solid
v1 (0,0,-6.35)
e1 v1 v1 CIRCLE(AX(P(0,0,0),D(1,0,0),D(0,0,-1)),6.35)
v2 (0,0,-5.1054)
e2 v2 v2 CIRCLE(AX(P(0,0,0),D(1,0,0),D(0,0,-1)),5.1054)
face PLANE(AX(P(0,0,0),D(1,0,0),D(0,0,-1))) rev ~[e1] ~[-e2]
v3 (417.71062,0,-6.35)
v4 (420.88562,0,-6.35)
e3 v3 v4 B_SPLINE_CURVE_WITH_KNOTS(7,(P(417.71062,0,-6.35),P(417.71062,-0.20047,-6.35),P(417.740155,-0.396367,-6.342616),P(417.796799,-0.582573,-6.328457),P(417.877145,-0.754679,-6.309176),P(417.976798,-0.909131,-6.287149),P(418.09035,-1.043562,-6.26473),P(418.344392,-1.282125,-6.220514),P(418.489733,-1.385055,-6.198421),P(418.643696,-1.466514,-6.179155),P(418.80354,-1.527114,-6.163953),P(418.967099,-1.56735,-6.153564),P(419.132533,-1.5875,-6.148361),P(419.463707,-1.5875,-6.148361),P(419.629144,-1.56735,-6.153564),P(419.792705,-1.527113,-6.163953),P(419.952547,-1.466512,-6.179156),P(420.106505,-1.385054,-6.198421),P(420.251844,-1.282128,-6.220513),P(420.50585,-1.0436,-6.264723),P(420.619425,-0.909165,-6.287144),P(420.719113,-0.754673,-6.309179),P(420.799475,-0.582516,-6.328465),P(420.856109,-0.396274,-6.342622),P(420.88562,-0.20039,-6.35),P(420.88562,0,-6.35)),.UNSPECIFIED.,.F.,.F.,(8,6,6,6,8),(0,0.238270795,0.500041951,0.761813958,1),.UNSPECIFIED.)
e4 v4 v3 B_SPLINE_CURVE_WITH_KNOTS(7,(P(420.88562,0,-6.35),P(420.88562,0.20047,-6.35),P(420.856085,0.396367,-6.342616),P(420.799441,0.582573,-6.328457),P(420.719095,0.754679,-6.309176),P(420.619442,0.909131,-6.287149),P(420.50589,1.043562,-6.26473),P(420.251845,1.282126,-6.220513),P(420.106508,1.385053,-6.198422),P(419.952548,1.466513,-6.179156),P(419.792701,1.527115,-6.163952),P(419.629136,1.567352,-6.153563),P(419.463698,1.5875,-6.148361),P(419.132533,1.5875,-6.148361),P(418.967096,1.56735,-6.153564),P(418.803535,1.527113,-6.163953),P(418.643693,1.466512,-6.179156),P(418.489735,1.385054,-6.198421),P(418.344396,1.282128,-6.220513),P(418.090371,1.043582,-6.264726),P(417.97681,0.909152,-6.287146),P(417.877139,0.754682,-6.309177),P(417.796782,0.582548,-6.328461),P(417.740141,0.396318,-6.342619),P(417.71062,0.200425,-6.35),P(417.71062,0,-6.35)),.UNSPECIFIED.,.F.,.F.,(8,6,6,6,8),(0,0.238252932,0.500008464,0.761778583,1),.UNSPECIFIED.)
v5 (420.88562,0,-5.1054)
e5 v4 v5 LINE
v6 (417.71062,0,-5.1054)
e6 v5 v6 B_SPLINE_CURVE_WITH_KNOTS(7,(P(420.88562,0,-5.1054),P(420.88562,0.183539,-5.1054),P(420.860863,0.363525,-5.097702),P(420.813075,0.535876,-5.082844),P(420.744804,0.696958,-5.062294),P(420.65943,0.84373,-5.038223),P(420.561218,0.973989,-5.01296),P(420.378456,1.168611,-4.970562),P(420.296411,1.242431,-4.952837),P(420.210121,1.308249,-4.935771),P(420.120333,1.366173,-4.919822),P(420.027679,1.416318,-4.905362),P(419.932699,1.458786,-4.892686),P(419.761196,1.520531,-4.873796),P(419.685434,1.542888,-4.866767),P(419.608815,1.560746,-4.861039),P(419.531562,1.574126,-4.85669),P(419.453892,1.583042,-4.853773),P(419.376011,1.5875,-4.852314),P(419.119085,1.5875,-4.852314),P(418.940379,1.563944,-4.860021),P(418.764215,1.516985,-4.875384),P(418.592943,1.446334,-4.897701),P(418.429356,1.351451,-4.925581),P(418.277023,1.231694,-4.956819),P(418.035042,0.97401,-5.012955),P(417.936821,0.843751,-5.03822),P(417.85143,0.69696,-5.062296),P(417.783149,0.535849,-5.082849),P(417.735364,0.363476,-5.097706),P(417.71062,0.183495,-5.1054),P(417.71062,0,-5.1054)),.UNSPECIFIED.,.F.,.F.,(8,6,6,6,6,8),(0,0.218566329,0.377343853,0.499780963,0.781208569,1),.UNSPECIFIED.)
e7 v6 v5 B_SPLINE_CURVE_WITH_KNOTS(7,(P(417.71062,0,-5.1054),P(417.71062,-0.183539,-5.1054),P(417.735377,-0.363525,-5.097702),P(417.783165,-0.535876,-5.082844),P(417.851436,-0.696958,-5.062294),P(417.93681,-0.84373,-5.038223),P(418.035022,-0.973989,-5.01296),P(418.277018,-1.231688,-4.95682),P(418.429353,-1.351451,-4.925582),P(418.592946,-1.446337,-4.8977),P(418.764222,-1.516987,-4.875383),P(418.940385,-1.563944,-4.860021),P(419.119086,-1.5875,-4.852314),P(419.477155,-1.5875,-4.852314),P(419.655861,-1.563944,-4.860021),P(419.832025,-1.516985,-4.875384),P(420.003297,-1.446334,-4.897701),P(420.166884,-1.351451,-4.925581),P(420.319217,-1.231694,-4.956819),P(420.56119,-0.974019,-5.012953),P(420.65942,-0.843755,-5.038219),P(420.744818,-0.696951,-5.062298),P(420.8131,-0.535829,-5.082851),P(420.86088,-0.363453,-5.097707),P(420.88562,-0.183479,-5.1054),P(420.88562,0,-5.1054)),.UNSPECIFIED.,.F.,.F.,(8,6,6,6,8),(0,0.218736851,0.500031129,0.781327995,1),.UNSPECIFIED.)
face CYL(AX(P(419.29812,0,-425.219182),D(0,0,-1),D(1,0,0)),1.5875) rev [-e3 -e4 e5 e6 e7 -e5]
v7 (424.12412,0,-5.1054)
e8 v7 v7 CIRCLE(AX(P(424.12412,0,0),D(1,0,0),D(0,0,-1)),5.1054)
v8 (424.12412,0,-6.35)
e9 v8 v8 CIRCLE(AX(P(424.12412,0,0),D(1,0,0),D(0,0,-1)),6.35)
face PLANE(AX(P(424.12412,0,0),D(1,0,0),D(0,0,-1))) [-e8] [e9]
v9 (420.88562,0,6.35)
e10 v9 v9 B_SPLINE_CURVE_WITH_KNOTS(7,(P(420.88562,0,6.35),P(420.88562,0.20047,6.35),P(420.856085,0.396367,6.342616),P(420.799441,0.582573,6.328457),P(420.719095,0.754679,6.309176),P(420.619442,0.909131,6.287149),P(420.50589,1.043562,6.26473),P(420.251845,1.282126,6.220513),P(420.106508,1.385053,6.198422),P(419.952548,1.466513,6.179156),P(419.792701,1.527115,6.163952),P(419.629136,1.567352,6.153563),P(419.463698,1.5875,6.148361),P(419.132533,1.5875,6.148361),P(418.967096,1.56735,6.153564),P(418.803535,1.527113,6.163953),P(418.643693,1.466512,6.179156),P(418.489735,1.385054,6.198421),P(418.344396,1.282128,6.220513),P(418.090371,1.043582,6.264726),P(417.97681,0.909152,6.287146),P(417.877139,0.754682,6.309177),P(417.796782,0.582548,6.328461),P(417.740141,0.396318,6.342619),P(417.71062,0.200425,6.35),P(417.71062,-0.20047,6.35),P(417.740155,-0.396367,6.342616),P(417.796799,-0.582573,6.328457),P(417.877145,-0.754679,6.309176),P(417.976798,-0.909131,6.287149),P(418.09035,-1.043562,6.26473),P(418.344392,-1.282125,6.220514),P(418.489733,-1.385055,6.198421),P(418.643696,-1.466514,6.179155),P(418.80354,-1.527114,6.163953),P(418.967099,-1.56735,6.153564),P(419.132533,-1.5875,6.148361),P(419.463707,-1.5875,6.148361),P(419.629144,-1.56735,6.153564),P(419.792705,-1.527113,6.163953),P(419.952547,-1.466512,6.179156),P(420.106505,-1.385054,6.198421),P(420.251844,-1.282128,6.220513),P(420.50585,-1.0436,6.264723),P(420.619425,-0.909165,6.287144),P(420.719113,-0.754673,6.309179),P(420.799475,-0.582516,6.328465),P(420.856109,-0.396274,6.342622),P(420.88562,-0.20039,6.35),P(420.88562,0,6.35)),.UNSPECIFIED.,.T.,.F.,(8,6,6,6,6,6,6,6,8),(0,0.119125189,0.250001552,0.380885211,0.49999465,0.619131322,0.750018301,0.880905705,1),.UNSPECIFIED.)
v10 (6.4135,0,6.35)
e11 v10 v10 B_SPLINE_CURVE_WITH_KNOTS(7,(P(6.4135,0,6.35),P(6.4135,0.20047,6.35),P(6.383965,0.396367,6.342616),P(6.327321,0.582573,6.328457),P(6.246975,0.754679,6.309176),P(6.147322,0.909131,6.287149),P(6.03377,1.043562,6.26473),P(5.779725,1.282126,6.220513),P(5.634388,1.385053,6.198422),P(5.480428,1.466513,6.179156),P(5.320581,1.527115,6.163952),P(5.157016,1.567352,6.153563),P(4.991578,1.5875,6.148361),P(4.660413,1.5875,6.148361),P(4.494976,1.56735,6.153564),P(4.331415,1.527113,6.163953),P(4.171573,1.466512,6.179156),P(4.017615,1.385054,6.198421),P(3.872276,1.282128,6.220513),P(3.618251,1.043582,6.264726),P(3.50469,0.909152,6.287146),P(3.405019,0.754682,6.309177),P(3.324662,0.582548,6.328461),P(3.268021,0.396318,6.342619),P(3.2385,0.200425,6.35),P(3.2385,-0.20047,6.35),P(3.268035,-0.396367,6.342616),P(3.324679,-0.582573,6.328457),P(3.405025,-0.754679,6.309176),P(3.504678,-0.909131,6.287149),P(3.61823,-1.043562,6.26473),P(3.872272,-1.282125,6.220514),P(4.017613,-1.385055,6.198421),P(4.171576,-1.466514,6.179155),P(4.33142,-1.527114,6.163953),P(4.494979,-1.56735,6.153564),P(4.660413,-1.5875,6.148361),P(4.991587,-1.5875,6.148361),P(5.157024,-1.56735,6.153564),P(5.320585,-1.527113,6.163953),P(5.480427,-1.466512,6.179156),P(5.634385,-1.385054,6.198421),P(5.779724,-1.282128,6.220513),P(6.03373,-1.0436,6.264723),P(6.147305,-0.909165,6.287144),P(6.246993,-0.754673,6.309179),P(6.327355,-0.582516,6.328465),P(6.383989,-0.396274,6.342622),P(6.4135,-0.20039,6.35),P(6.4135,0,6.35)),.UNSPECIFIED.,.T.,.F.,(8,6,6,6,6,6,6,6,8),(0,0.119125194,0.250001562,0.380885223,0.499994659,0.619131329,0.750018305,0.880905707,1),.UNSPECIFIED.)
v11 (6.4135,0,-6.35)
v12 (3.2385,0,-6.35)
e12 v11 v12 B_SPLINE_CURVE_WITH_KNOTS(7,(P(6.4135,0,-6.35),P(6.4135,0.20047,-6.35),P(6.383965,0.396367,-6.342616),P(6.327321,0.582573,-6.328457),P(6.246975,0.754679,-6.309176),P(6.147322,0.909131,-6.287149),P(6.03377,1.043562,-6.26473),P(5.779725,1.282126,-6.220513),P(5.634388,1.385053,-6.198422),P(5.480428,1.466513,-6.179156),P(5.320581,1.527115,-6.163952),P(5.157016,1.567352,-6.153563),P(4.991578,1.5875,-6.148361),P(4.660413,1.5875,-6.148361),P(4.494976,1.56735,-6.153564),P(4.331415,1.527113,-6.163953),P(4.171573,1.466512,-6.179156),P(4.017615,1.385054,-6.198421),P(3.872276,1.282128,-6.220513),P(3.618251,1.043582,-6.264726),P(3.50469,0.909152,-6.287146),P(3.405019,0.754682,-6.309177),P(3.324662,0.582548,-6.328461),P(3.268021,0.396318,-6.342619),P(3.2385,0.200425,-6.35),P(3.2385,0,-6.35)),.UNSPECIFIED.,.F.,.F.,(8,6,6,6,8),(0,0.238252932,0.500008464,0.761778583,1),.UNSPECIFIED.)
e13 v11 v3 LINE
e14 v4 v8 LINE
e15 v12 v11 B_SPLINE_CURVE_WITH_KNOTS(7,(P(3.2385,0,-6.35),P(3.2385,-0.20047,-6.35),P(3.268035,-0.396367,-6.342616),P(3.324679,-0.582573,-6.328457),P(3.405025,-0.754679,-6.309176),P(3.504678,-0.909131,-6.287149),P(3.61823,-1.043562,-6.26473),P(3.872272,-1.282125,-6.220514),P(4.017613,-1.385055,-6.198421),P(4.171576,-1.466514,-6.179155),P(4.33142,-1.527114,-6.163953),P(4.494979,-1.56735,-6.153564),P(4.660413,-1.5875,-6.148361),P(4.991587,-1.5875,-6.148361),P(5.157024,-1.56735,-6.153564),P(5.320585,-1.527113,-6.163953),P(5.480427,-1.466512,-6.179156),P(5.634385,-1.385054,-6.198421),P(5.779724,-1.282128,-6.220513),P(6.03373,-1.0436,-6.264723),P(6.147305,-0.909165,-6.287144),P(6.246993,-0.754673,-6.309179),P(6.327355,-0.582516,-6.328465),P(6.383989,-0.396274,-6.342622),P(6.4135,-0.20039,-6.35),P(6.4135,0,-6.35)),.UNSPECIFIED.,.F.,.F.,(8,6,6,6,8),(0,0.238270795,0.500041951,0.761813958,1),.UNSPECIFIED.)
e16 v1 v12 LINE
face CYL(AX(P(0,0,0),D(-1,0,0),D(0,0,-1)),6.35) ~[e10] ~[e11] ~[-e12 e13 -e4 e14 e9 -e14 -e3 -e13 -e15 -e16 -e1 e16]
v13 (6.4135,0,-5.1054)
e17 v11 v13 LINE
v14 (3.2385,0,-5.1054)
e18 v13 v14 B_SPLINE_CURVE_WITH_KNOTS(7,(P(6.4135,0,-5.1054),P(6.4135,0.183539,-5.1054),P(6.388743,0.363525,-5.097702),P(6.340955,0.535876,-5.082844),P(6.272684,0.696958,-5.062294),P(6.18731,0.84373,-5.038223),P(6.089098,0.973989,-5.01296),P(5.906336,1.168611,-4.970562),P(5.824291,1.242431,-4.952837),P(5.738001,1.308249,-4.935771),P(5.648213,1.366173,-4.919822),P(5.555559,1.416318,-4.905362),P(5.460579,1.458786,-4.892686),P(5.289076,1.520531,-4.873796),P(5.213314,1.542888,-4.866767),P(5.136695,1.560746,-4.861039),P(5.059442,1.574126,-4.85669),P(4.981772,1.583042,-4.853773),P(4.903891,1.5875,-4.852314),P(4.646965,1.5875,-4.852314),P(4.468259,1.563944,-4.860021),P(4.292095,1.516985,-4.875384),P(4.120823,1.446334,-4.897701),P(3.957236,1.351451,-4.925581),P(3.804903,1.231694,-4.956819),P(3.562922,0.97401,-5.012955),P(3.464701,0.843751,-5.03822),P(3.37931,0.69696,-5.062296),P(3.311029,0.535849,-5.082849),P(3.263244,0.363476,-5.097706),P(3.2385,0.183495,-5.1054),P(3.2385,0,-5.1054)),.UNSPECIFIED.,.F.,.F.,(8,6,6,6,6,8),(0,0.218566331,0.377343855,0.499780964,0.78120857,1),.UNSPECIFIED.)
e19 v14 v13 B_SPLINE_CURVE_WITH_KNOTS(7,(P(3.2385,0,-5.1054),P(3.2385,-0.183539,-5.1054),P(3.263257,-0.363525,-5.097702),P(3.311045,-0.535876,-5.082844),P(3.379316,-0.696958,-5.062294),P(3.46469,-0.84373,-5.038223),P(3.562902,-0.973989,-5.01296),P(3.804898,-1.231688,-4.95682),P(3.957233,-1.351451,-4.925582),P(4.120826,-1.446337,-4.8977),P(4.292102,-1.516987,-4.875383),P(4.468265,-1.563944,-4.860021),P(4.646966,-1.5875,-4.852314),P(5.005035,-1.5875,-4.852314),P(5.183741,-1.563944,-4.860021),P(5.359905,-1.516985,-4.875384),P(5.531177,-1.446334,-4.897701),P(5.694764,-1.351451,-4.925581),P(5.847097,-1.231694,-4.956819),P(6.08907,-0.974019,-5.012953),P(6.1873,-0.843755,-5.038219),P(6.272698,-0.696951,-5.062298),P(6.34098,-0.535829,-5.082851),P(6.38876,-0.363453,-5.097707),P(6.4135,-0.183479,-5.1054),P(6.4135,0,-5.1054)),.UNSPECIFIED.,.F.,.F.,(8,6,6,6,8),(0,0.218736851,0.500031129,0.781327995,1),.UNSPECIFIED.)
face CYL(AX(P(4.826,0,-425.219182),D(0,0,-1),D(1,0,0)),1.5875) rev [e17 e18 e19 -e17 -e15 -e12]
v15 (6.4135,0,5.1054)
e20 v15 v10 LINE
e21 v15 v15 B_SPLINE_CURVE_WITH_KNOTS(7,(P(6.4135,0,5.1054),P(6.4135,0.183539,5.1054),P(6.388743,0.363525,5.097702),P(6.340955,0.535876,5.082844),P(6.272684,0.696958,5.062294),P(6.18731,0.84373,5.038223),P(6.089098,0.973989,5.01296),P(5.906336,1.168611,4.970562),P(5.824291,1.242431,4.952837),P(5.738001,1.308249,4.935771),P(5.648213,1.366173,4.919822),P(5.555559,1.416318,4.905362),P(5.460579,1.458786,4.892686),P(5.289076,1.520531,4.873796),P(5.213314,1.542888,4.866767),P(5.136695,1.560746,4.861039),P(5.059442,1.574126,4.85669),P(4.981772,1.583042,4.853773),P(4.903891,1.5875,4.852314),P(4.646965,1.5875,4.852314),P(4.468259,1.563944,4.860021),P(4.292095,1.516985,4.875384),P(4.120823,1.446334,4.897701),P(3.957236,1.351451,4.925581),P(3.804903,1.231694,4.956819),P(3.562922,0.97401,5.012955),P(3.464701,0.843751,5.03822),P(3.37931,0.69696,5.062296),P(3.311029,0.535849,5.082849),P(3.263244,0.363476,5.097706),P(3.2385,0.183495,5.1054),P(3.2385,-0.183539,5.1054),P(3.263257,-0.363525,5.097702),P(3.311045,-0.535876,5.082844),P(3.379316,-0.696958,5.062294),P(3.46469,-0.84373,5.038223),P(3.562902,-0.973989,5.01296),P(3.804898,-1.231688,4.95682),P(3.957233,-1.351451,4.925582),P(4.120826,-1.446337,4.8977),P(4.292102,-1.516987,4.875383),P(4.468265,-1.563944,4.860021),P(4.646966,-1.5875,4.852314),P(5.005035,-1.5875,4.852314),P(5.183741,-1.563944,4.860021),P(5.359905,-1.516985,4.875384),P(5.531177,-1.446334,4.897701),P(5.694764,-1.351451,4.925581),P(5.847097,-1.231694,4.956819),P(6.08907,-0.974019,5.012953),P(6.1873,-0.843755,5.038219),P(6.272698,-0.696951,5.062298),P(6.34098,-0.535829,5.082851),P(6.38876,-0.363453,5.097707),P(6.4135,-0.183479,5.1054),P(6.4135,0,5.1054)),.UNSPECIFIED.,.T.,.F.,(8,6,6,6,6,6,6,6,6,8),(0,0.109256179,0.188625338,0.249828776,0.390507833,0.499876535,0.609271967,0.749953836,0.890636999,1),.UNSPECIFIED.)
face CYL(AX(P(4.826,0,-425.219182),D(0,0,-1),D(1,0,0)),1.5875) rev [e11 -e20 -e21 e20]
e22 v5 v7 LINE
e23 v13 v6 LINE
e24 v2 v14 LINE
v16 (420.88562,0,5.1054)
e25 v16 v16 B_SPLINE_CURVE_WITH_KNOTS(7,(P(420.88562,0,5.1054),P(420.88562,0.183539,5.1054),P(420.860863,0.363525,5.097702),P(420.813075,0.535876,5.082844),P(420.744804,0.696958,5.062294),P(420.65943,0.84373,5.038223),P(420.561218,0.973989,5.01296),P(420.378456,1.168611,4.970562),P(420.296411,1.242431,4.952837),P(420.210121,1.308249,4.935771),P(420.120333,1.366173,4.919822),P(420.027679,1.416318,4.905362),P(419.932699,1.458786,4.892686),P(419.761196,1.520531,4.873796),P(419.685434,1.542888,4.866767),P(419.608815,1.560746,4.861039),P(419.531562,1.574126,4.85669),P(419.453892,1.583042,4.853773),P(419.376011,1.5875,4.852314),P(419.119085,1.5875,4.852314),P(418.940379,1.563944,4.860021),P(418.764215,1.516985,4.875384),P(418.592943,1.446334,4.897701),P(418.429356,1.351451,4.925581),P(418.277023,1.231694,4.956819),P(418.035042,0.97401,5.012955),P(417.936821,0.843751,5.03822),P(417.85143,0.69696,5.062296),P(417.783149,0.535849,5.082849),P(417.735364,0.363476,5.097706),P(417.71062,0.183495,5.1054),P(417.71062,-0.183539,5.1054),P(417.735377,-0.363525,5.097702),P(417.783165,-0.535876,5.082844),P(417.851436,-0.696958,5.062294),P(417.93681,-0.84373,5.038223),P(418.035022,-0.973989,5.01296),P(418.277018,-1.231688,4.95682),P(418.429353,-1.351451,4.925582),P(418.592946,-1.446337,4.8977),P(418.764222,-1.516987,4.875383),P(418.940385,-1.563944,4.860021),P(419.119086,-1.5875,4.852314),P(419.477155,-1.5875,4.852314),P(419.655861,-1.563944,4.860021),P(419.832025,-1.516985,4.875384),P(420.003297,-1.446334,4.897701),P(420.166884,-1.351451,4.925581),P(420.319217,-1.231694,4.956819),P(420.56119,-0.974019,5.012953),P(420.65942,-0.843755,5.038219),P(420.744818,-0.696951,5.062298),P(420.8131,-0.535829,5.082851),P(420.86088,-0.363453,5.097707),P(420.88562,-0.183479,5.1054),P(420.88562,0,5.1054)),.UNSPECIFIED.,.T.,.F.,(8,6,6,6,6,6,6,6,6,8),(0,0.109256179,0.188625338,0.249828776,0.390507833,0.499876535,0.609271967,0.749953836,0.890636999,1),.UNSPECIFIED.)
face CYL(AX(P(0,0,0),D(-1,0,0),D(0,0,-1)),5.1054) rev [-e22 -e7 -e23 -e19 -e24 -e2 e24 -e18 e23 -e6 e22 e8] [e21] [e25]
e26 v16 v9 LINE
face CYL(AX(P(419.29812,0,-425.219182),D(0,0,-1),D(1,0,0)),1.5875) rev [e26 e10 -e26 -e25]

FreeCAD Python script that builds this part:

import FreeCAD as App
import Part
import Sketcher
from FreeCAD import Vector
Q = App.Units.Quantity

doc = App.newDocument("Part")
params = doc.addObject("Spreadsheet::Sheet", "Params")
for row, (alias, value) in enumerate([
    ("sketch1_diameter", "0.5 in"),
    ("sketch1_diameter2", "0.402 in"),
    ("pad1_length", "16.6978 in"),
    ("sketch2_diameter", "0.125 in"),
], start=1):
    params.set(f"A{row}", alias)
    params.set(f"B{row}", "=" + value)
    params.setAlias(f"B{row}", alias)

body = doc.addObject("PartDesign::Body", "Body")

# Sketch on YZ plane
sketch1 = body.newObject("Sketcher::SketchObject", "Sketch")
sketch1.AttachmentSupport = (doc.getObject("YZ_Plane"), [""])
sketch1.MapMode = "FlatFace"
sketch1.addGeometry([
    Part.Circle(Vector(0, 0, 0), Vector(0, 0, 1), 6),
    Part.Circle(Vector(0, 0, 0), Vector(0, 0, 1), 5),
], False)
sketch1.addConstraint([
    Sketcher.Constraint("Coincident", 0, 3, -1, 1),
    Sketcher.Constraint("Coincident", 1, 3, -1, 1),
    Sketcher.Constraint("Diameter", 0, Q("0.5 in")),
    Sketcher.Constraint("Diameter", 1, Q("0.402 in")),
])
sketch1.setExpression("Constraints[2]", "Params.sketch1_diameter")
sketch1.setExpression("Constraints[3]", "Params.sketch1_diameter2")
pad1 = body.newObject("PartDesign::Pad", "Pad")
pad1.Profile = sketch1
pad1.setExpression("Length", "Params.pad1_length")

# Sketch on XY plane
sketch2 = body.newObject("Sketcher::SketchObject", "Sketch001")
sketch2.AttachmentSupport = (doc.getObject("XY_Plane"), [""])
sketch2.MapMode = "FlatFace"
sketch2.addGeometry([
    Part.Circle(Vector(4.8, 0, 0), Vector(0, 0, 1), 1.6),
    Part.Circle(Vector(419.3, 0, 0), Vector(0, 0, 1), 1.6),
], False)
sketch2.addConstraint([
    Sketcher.Constraint("Equal", 0, 1),
    Sketcher.Constraint("PointOnObject", 0, 3, -1),
    Sketcher.Constraint("PointOnObject", 1, 3, -1),
    Sketcher.Constraint("Diameter", 0, Q("0.125 in")),
    Sketcher.Constraint("DistanceX", -1, 1, 0, 3, Q("0.19 in")),
    Sketcher.Constraint("DistanceX", -1, 1, 1, 3, Q("16.5078 in")),
])
sketch2.setExpression("Constraints[3]", "Params.sketch2_diameter")
pocket1 = body.newObject("PartDesign::Pocket", "Pocket")
pocket1.Profile = sketch2
pocket1.Type = "ThroughAll"
pocket1.Midplane = True

doc.recompute()
